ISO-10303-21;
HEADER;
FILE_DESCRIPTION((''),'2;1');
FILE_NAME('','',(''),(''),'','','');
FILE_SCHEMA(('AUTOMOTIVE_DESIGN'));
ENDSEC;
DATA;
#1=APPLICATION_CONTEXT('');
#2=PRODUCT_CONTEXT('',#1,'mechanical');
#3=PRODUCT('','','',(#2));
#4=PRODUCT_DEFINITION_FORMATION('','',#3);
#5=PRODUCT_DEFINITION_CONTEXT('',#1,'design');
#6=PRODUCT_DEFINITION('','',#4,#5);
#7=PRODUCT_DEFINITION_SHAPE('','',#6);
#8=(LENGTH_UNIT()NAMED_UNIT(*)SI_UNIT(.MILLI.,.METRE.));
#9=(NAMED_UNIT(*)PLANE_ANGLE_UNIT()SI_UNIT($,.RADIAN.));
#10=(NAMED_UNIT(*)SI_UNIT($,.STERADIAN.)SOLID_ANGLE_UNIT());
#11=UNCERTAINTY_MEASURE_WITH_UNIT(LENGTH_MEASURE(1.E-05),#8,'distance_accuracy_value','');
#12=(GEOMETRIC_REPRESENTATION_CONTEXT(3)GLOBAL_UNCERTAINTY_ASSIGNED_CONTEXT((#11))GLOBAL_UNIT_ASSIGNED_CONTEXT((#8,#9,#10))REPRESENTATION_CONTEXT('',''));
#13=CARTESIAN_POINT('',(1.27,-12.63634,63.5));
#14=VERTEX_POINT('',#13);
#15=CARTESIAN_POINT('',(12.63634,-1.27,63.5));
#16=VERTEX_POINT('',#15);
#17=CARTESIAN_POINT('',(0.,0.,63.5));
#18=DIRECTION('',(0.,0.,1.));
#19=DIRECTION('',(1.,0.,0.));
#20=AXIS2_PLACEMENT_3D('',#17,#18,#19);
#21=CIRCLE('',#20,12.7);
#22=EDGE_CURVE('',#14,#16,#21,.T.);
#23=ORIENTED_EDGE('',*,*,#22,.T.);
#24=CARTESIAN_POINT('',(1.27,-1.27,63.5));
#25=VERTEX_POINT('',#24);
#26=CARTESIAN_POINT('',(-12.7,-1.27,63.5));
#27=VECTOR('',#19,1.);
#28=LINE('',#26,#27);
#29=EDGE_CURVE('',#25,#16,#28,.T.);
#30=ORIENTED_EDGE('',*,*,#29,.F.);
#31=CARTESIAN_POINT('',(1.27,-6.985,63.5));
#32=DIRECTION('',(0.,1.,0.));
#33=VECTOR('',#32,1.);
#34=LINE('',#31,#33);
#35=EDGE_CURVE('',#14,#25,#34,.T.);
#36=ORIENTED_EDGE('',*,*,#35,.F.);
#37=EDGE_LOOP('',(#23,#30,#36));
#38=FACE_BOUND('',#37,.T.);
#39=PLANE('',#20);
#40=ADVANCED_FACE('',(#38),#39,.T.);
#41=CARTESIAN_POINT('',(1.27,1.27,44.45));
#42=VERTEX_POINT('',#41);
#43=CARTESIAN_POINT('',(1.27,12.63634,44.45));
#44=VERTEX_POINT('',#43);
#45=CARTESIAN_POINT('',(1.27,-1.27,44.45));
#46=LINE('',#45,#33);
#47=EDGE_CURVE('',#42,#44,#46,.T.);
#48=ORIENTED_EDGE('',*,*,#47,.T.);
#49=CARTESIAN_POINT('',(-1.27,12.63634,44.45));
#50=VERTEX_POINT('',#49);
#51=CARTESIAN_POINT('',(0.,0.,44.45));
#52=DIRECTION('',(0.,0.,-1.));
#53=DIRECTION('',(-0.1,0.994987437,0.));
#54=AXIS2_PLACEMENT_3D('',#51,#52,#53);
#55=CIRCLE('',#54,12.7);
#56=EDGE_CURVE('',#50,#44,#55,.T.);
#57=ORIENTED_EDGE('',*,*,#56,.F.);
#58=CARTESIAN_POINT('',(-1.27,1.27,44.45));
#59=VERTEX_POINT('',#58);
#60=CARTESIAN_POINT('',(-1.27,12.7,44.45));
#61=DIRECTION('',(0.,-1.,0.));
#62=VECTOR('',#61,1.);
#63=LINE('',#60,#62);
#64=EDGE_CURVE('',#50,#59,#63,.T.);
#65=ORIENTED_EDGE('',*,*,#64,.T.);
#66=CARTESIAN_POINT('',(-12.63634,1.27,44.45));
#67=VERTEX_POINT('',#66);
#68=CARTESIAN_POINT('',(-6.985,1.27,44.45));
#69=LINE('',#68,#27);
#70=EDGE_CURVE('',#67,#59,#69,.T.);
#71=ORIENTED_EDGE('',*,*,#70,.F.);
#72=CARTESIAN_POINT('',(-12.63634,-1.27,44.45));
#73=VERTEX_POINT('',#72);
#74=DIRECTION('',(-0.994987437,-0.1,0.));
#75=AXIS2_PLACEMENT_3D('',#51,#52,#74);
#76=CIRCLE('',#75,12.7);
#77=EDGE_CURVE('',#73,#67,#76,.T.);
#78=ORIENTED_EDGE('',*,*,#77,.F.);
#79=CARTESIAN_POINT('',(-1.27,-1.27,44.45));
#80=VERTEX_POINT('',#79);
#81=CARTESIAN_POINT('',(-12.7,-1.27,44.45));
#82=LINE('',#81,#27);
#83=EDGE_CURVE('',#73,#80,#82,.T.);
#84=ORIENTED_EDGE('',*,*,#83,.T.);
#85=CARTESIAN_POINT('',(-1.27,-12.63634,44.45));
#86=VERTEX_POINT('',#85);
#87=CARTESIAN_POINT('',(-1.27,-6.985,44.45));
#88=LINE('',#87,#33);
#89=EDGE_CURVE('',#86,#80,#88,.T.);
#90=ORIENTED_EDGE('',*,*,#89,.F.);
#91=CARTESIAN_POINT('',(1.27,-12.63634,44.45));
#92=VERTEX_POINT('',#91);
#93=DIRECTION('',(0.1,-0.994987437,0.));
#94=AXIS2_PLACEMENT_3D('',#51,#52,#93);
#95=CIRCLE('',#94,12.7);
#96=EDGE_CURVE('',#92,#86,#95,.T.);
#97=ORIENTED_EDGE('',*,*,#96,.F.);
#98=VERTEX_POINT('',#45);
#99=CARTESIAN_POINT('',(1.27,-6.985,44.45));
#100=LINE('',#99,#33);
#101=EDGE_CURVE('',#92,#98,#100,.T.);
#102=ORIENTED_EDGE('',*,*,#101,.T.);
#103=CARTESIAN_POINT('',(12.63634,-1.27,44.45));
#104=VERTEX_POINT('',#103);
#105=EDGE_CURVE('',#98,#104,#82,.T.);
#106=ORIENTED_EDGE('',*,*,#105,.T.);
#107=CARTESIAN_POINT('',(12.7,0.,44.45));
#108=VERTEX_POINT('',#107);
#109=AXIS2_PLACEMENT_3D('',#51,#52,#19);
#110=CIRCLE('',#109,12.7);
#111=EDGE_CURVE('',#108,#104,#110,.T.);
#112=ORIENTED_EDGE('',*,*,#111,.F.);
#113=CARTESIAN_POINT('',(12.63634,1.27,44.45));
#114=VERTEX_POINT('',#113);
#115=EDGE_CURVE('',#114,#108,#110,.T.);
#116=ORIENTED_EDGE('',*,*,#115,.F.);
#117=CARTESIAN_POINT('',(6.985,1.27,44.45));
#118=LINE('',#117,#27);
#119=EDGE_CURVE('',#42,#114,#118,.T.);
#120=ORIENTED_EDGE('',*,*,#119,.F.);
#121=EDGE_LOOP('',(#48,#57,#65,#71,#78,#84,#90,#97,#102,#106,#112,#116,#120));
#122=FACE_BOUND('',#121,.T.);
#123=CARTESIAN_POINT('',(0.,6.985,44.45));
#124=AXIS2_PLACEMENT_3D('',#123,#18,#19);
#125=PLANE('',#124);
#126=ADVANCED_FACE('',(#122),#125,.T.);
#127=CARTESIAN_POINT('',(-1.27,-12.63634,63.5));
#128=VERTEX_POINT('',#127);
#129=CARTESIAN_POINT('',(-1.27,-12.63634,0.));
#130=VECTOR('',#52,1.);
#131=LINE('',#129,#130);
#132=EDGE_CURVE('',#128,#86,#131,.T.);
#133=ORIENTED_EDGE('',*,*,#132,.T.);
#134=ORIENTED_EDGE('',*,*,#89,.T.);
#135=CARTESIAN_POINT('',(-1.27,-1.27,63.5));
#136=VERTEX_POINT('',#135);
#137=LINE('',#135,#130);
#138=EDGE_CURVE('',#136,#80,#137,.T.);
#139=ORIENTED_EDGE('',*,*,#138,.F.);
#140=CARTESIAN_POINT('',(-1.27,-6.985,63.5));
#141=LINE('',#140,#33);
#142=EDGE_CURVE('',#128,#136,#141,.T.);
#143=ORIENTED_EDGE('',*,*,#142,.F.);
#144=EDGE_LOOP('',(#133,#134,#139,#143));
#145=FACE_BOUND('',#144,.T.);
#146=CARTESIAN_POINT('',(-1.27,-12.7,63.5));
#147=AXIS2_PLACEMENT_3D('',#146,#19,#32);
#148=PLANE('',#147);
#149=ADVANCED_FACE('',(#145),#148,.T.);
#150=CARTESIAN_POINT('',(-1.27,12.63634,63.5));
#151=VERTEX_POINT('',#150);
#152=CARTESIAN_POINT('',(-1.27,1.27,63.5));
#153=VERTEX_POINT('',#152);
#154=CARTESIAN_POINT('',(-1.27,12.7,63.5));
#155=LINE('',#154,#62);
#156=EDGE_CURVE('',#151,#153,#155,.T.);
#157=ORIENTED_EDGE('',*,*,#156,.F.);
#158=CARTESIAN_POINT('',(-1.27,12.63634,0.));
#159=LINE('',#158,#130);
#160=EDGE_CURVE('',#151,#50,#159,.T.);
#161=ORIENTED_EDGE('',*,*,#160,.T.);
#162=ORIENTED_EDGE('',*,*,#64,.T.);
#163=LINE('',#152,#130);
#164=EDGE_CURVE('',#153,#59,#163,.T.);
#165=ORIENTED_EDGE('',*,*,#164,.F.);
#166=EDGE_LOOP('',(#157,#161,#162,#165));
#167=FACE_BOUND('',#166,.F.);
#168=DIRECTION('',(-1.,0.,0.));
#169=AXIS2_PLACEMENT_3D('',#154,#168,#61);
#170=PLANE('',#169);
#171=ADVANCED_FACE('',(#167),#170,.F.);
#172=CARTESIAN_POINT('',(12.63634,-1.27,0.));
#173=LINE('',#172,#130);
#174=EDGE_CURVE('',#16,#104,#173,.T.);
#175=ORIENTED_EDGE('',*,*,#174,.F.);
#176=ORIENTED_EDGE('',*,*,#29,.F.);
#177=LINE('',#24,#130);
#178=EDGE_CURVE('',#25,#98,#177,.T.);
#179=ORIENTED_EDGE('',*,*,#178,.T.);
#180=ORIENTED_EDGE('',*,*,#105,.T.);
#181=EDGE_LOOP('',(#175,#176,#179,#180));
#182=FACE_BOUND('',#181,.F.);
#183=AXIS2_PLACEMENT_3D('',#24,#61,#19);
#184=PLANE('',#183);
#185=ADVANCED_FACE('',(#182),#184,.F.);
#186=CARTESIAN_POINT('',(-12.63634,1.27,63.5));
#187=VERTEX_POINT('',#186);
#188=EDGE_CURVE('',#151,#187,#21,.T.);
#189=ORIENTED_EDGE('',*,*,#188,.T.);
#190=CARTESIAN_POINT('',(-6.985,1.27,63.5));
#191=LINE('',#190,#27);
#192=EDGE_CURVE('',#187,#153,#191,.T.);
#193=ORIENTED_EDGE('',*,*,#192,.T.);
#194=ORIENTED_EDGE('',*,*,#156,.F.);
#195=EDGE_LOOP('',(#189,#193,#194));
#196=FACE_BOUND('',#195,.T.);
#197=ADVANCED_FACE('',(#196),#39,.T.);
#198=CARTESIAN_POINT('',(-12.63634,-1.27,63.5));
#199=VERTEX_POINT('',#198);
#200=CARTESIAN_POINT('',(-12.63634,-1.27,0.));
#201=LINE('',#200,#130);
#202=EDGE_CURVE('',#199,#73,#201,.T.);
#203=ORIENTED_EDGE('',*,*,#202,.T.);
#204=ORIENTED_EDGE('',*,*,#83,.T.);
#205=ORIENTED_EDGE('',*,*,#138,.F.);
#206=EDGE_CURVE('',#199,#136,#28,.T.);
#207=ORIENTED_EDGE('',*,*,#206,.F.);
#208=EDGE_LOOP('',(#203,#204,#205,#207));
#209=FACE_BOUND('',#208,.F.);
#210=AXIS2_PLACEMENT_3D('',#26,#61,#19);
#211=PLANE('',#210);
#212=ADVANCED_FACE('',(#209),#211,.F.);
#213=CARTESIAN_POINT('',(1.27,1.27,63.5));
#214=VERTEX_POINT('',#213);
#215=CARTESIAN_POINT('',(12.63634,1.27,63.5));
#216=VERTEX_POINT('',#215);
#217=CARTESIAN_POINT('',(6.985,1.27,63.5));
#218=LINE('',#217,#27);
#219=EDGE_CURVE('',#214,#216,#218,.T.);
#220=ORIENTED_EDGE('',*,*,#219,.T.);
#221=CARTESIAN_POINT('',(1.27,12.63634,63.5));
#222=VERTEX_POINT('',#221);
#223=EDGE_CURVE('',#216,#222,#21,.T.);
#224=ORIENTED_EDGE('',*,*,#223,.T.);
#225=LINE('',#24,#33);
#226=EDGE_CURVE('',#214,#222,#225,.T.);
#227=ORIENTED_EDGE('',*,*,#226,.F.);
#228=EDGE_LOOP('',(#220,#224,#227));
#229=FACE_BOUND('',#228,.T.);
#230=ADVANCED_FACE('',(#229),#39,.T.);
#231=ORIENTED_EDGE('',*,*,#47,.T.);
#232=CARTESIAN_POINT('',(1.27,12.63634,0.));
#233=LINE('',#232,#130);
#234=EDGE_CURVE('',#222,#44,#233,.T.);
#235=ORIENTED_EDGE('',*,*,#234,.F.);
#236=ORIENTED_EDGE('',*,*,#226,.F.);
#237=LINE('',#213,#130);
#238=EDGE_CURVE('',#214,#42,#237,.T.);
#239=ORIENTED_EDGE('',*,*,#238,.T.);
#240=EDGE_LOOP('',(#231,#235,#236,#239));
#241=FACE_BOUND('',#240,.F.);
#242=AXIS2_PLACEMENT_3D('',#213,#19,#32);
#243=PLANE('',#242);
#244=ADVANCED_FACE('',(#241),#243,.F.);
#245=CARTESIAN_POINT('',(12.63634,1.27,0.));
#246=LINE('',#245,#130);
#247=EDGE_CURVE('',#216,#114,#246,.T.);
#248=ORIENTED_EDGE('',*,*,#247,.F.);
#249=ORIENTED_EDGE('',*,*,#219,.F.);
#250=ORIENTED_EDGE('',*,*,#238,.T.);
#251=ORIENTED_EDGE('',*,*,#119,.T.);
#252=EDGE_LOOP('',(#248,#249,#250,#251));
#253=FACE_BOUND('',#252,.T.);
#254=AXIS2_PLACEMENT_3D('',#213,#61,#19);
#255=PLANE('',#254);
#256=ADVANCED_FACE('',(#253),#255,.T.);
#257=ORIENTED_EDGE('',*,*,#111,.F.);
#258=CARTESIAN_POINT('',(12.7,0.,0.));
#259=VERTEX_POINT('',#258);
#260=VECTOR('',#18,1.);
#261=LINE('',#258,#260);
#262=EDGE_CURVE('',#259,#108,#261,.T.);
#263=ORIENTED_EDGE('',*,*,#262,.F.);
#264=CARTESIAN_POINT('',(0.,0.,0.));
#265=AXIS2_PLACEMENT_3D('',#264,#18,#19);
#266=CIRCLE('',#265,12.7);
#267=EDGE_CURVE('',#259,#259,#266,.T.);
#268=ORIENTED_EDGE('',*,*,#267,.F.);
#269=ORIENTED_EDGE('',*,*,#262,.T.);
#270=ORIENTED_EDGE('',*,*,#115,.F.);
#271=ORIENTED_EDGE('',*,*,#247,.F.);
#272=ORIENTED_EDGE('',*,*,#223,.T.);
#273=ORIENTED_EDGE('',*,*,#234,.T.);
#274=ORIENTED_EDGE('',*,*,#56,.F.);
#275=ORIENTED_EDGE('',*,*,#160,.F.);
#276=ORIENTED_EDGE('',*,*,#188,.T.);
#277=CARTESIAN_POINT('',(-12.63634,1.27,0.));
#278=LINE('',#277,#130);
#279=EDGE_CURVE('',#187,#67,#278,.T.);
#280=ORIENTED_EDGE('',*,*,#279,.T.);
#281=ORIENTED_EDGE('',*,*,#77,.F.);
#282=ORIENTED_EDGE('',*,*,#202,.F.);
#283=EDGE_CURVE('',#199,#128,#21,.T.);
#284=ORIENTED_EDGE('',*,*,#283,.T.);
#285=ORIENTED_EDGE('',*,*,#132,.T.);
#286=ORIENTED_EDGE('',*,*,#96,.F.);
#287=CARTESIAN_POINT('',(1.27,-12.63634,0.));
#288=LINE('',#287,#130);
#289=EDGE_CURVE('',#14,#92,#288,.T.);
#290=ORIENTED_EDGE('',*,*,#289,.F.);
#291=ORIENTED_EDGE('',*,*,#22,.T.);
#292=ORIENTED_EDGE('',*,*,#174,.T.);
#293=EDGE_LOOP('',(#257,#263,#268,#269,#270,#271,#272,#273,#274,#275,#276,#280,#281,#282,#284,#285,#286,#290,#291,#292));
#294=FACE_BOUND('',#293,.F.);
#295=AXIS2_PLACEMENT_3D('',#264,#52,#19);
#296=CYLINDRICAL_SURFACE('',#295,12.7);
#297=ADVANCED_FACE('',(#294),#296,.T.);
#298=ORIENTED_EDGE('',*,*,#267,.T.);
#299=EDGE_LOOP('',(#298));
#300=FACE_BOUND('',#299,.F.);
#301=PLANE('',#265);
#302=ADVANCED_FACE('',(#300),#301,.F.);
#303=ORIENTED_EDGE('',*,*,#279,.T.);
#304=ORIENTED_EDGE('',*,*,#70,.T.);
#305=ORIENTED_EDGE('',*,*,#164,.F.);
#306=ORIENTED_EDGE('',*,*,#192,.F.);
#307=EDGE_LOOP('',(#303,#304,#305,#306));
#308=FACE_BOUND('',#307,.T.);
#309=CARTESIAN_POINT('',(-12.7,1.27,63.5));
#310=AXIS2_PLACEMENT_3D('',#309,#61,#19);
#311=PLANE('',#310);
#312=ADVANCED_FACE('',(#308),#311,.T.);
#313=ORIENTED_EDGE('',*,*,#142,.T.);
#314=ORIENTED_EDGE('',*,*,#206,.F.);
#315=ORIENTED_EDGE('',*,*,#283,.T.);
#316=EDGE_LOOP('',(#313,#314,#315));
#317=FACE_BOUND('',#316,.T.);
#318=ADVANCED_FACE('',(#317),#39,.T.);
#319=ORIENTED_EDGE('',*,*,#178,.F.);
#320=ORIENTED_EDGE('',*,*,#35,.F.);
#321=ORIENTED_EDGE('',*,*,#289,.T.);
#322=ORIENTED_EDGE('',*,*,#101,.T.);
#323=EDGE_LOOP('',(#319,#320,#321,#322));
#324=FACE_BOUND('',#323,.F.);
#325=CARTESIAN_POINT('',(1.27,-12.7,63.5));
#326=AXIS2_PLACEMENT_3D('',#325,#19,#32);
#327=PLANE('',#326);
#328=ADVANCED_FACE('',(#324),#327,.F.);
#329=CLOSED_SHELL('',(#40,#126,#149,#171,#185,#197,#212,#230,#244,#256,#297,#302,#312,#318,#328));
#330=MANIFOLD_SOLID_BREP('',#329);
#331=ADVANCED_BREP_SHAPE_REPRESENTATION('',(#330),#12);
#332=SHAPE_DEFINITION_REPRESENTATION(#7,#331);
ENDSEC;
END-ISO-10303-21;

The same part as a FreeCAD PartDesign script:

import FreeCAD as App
import Part
import Sketcher
Q = App.Units.Quantity

doc = App.newDocument("Part")
params = doc.addObject("Spreadsheet::Sheet", "Params")
for row, (alias, value) in enumerate([
    ("sketch1_diameter", "1 in"),
    ("pad1_length", "2.5 in"),
    ("sketch2_width", "0.1 in"),
    ("sketch2_width2", "0.45 in"),
    ("pocket1_length", "0.75 in"),
], start=1):
    params.set(f"A{row}", alias)
    params.set(f"B{row}", "=" + value)
    params.setAlias(f"B{row}", alias)

body = doc.addObject("PartDesign::Body", "Body")

# Sketch on XY plane
sketch1 = body.newObject("Sketcher::SketchObject", "Sketch")
sketch1.AttachmentSupport = (doc.getObject("XY_Plane"), [""])
sketch1.MapMode = "FlatFace"
sketch1.addGeometry(Part.Circle(App.Vector(0, 0, 0), App.Vector(0, 0, 1), 13), False)
sketch1.addConstraint([
    Sketcher.Constraint("Coincident", 0, 3, -1, 1),
    Sketcher.Constraint("Diameter", 0, Q("1 in")),
])
sketch1.setExpression("Constraints[1]", "Params.sketch1_diameter")
pad1 = body.newObject("PartDesign::Pad", "Pad")
pad1.Profile = sketch1
pad1.setExpression("Length", "Params.pad1_length")

# Sketch on XY plane
sketch2 = body.newObject("Sketcher::SketchObject", "Sketch001")
sketch2.AttachmentSupport = (doc.getObject("XY_Plane"), [""])
sketch2.MapMode = "FlatFace"
sketch2.AttachmentOffset = App.Placement(App.Vector(0, 0, 2.5 * 25.4), App.Rotation())
sketch2.addGeometry([
    Part.LineSegment(App.Vector(-1.3, 12.7, 0), App.Vector(-1.3, 1.3, 0)),  # 0
    Part.LineSegment(App.Vector(-1.3, 1.3, 0), App.Vector(-12.7, 1.3, 0)),  # 1
    Part.LineSegment(App.Vector(-12.7, 1.3, 0), App.Vector(-12.7, -1.3, 0)),  # 2
    Part.LineSegment(App.Vector(-12.7, -1.3, 0), App.Vector(-1.3, -1.3, 0)),  # 3
    Part.LineSegment(App.Vector(-1.3, -1.3, 0), App.Vector(-1.3, -12.7, 0)),  # 4
    Part.LineSegment(App.Vector(-1.3, -12.7, 0), App.Vector(1.3, -12.7, 0)),  # 5
    Part.LineSegment(App.Vector(1.3, -12.7, 0), App.Vector(1.3, -1.3, 0)),  # 6
    Part.LineSegment(App.Vector(1.3, -1.3, 0), App.Vector(12.7, -1.3, 0)),  # 7
    Part.LineSegment(App.Vector(12.7, -1.3, 0), App.Vector(12.7, 1.3, 0)),  # 8
    Part.LineSegment(App.Vector(12.7, 1.3, 0), App.Vector(1.3, 1.3, 0)),  # 9
    Part.LineSegment(App.Vector(1.3, 1.3, 0), App.Vector(1.3, 12.7, 0)),  # 10
    Part.LineSegment(App.Vector(1.3, 12.7, 0), App.Vector(-1.3, 12.7, 0)),  # 11
], False)
sketch2.addConstraint([
    Sketcher.Constraint("Coincident", 0, 2, 1, 1),
    Sketcher.Constraint("Coincident", 1, 2, 2, 1),
    Sketcher.Constraint("Coincident", 2, 2, 3, 1),
    Sketcher.Constraint("Coincident", 3, 2, 4, 1),
    Sketcher.Constraint("Coincident", 4, 2, 5, 1),
    Sketcher.Constraint("Coincident", 5, 2, 6, 1),
    Sketcher.Constraint("Coincident", 6, 2, 7, 1),
    Sketcher.Constraint("Coincident", 7, 2, 8, 1),
    Sketcher.Constraint("Coincident", 8, 2, 9, 1),
    Sketcher.Constraint("Coincident", 9, 2, 10, 1),
    Sketcher.Constraint("Coincident", 10, 2, 11, 1),
    Sketcher.Constraint("Coincident", 11, 2, 0, 1),
    Sketcher.Constraint("Vertical", 0),
    Sketcher.Constraint("Horizontal", 1),
    Sketcher.Constraint("Vertical", 2),
    Sketcher.Constraint("Horizontal", 3),
    Sketcher.Constraint("Vertical", 4),
    Sketcher.Constraint("Horizontal", 5),
    Sketcher.Constraint("Vertical", 6),
    Sketcher.Constraint("Horizontal", 7),
    Sketcher.Constraint("Vertical", 8),
    Sketcher.Constraint("Horizontal", 9),
    Sketcher.Constraint("Vertical", 10),
    Sketcher.Constraint("Horizontal", 11),
    Sketcher.Constraint("Symmetric", 0, 2, 6, 2, -1, 1),
    Sketcher.Constraint("Symmetric", 2, 2, 8, 2, -1, 1),
    Sketcher.Constraint("Symmetric", 4, 2, 10, 2, -1, 1),
    Sketcher.Constraint("Symmetric", 3, 2, 6, 2, -2),
    Sketcher.Constraint("Equal", 9, 0),
    Sketcher.Constraint("Equal", 11, 2),
    Sketcher.Constraint("DistanceX", 5, 1, 5, 2, Q("0.1 in")),
    Sketcher.Constraint("DistanceX", 1, 2, 1, 1, Q("0.45 in")),
])
sketch2.setExpression("Constraints[30]", "Params.sketch2_width")
sketch2.setExpression("Constraints[31]", "Params.sketch2_width2")
pocket1 = body.newObject("PartDesign::Pocket", "Pocket")
pocket1.Profile = sketch2
pocket1.setExpression("Length", "Params.pocket1_length")

doc.recompute()
